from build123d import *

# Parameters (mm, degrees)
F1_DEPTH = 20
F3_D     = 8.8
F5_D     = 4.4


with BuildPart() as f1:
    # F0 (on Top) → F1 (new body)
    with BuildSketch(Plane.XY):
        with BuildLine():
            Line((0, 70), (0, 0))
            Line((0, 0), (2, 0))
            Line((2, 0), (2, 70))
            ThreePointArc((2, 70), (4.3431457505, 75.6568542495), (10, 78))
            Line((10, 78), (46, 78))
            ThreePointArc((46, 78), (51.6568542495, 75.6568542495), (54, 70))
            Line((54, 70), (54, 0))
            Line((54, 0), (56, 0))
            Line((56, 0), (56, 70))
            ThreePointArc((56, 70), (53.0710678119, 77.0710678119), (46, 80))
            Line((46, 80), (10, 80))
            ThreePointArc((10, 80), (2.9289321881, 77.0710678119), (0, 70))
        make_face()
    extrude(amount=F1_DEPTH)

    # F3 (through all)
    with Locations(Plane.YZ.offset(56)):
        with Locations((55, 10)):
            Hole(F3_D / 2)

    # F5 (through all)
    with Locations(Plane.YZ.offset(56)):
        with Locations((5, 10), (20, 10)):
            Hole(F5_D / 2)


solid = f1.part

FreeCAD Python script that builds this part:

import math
import FreeCAD as App
import Part
import Sketcher
from FreeCAD import Vector

doc = App.newDocument("Part")
body = doc.addObject("PartDesign::Body", "Body")

sketch1 = body.newObject("Sketcher::SketchObject", "Sketch")
sketch1.AttachmentSupport = (doc.getObject("XY_Plane"), [""])
sketch1.MapMode = "FlatFace"
sketch1.addGeometry(Part.LineSegment(Vector(0, 70, 0), Vector(0, 0, 0)), False)
sketch1.addGeometry(Part.LineSegment(Vector(0, 0, 0), Vector(2, 0, 0)), False)
sketch1.addGeometry(Part.LineSegment(Vector(2, 0, 0), Vector(2, 70, 0)), False)
sketch1.addGeometry(Part.ArcOfCircle(Part.Circle(Vector(10, 70, 0), Vector(0, 0, 1), 8), math.radians(90), math.radians(180)), False)
sketch1.addGeometry(Part.LineSegment(Vector(10, 78, 0), Vector(46, 78, 0)), False)
sketch1.addGeometry(Part.ArcOfCircle(Part.Circle(Vector(46, 70, 0), Vector(0, 0, 1), 8), math.radians(0), math.radians(90)), False)
sketch1.addGeometry(Part.LineSegment(Vector(54, 70, 0), Vector(54, 0, 0)), False)
sketch1.addGeometry(Part.LineSegment(Vector(54, 0, 0), Vector(56, 0, 0)), False)
sketch1.addGeometry(Part.LineSegment(Vector(56, 0, 0), Vector(56, 70, 0)), False)
sketch1.addGeometry(Part.ArcOfCircle(Part.Circle(Vector(46, 70, 0), Vector(0, 0, 1), 10), math.radians(0), math.radians(90)), False)
sketch1.addGeometry(Part.LineSegment(Vector(46, 80, 0), Vector(10, 80, 0)), False)
sketch1.addGeometry(Part.ArcOfCircle(Part.Circle(Vector(10, 70, 0), Vector(0, 0, 1), 10), math.radians(90), math.radians(180)), False)
sketch1.addConstraint(Sketcher.Constraint("Coincident", 0, 2, 1, 1))
sketch1.addConstraint(Sketcher.Constraint("Coincident", 1, 2, 2, 1))
sketch1.addConstraint(Sketcher.Constraint("Tangent", 2, 2, 3, 2))
sketch1.addConstraint(Sketcher.Constraint("Tangent", 3, 1, 4, 1))
sketch1.addConstraint(Sketcher.Constraint("Tangent", 4, 2, 5, 2))
sketch1.addConstraint(Sketcher.Constraint("Tangent", 5, 1, 6, 1))
sketch1.addConstraint(Sketcher.Constraint("Coincident", 6, 2, 7, 1))
sketch1.addConstraint(Sketcher.Constraint("Coincident", 7, 2, 8, 1))
sketch1.addConstraint(Sketcher.Constraint("Tangent", 8, 2, 9, 1))
sketch1.addConstraint(Sketcher.Constraint("Tangent", 9, 2, 10, 1))
sketch1.addConstraint(Sketcher.Constraint("Tangent", 10, 2, 11, 1))
sketch1.addConstraint(Sketcher.Constraint("Tangent", 11, 2, 0, 1))
sketch1.addConstraint(Sketcher.Constraint("Vertical", 0))
sketch1.addConstraint(Sketcher.Constraint("Horizontal", 1))
sketch1.addConstraint(Sketcher.Constraint("Vertical", 2))
sketch1.addConstraint(Sketcher.Constraint("Horizontal", 4))
sketch1.addConstraint(Sketcher.Constraint("Vertical", 6))
sketch1.addConstraint(Sketcher.Constraint("Horizontal", 7))
sketch1.addConstraint(Sketcher.Constraint("Vertical", 8))
sketch1.addConstraint(Sketcher.Constraint("Horizontal", 10))
sketch1.addConstraint(Sketcher.Constraint("Coincident", 0, 2, -1, 1))
sketch1.addConstraint(Sketcher.Constraint("Coincident", 9, 3, 5, 3))
sketch1.addConstraint(Sketcher.Constraint("Coincident", 11, 3, 3, 3))
sketch1.addConstraint(Sketcher.Constraint("Equal", 3, 5))
sketch1.addConstraint(Sketcher.Constraint("PointOnObject", 6, 2, -1))
sketch1.addConstraint(Sketcher.Constraint("Radius", 3, 8.0))
sketch1.addConstraint(Sketcher.Constraint("Radius", 9, 10.0))
sketch1.addConstraint(Sketcher.Constraint("DistanceX", 4, 1, 4, 2, 36.0))
sketch1.addConstraint(Sketcher.Constraint("DistanceY", 0, 2, 0, 1, 70.0))
pad1 = body.newObject("PartDesign::Pad", "Pad")
pad1.Profile = sketch1
pad1.Length = 20

sketch2 = body.newObject("Sketcher::SketchObject", "Sketch001")
sketch2.AttachmentSupport = (doc.getObject("YZ_Plane"), [""])
sketch2.MapMode = "FlatFace"
sketch2.AttachmentOffset = App.Placement(Vector(0, 0, 56), App.Rotation())
sketch2.addGeometry(Part.Circle(Vector(55, 10, 0), Vector(0, 0, 1), 4.4), False)
sketch2.addConstraint(Sketcher.Constraint("Diameter", 0, 8.8))
sketch2.addConstraint(Sketcher.Constraint("DistanceX", -1, 1, 0, 3, 55.0))
sketch2.addConstraint(Sketcher.Constraint("DistanceY", -1, 1, 0, 3, 10.0))
doc.recompute()
hole = body.newObject("PartDesign::Hole", "Hole")
hole.Profile = sketch2
hole.ThreadType = "None"
hole.Diameter = 8.8
hole.DepthType = "ThroughAll"

sketch3 = body.newObject("Sketcher::SketchObject", "Sketch002")
sketch3.AttachmentSupport = (doc.getObject("YZ_Plane"), [""])
sketch3.MapMode = "FlatFace"
sketch3.AttachmentOffset = App.Placement(Vector(0, 0, 56), App.Rotation())
sketch3.addGeometry(Part.Circle(Vector(5, 10, 0), Vector(0, 0, 1), 2.2), False)
sketch3.addGeometry(Part.Circle(Vector(20, 10, 0), Vector(0, 0, 1), 2.2), False)
sketch3.addConstraint(Sketcher.Constraint("Equal", 0, 1))
sketch3.addConstraint(Sketcher.Constraint("Horizontal", 0, 3, 1, 3))
sketch3.addConstraint(Sketcher.Constraint("Diameter", 0, 4.4))
sketch3.addConstraint(Sketcher.Constraint("DistanceX", -1, 1, 0, 3, 5.0))
sketch3.addConstraint(Sketcher.Constraint("DistanceY", -1, 1, 0, 3, 10.0))
sketch3.addConstraint(Sketcher.Constraint("DistanceX", -1, 1, 1, 3, 20.0))
doc.recompute()
hole2 = body.newObject("PartDesign::Hole", "Hole001")
hole2.Profile = sketch3
hole2.ThreadType = "None"
hole2.Diameter = 4.4
hole2.DepthType = "ThroughAll"

doc.recompute()
